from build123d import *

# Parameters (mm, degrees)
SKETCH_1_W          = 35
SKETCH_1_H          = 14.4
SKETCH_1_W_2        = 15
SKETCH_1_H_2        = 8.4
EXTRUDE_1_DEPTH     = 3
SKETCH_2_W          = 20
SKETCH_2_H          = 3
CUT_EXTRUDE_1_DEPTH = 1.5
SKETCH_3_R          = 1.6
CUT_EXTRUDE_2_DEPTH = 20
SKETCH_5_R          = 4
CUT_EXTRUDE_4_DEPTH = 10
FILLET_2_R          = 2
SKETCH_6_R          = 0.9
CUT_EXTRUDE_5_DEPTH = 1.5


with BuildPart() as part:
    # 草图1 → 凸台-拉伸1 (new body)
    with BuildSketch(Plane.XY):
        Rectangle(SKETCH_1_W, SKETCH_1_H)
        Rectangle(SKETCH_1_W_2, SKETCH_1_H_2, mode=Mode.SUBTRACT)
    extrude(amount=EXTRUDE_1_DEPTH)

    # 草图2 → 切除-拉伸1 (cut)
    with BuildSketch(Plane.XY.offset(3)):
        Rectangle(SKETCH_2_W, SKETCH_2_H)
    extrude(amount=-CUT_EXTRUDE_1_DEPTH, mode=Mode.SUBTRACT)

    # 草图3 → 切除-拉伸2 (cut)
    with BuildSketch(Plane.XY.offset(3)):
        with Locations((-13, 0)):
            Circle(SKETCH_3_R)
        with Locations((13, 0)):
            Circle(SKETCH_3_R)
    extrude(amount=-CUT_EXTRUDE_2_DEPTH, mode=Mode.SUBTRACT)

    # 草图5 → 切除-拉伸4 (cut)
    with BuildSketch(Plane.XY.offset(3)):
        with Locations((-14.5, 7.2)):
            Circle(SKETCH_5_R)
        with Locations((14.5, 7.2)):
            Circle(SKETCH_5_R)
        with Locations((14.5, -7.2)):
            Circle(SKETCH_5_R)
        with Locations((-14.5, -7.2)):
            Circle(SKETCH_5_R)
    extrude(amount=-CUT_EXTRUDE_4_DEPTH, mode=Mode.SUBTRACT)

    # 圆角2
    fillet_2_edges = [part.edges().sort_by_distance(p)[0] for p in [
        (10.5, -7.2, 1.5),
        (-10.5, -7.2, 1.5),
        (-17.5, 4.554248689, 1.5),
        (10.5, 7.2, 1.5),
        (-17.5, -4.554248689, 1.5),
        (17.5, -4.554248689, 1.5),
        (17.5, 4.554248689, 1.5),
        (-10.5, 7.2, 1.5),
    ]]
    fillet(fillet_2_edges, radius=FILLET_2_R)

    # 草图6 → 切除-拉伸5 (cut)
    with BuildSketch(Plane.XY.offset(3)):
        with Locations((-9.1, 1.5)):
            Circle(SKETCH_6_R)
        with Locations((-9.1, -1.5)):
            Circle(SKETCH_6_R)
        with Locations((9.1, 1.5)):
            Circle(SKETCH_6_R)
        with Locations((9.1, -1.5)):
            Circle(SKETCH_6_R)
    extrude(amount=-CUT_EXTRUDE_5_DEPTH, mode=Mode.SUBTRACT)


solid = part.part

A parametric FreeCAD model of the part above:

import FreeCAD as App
import Part
import Sketcher
Q = App.Units.Quantity


def edges_at(feature, points):
    """Names of the edges that pass closest to the given points."""
    edges = feature.Shape.Edges
    near = lambda p: min(range(len(edges)), key=lambda i: edges[i].distToShape(Part.Vertex(*p))[0])
    return sorted({f"Edge{near(p) + 1}" for p in points})

doc = App.newDocument("Part")
body = doc.addObject("PartDesign::Body", "Body")

sketch1 = doc.addObject("Sketcher::SketchObject", "Sketch")
body.addObject(sketch1)
sketch1.AttachmentSupport = (doc.XY_Plane, [""])
sketch1.MapMode = "FlatFace"
sketch1.addGeometry(Part.LineSegment(App.Vector(-17.5, 7.2, 0), App.Vector(-17.5, -7.2, 0)), False)
sketch1.addGeometry(Part.LineSegment(App.Vector(-17.5, -7.2, 0), App.Vector(17.5, -7.2, 0)), False)
sketch1.addGeometry(Part.LineSegment(App.Vector(17.5, -7.2, 0), App.Vector(17.5, 7.2, 0)), False)
sketch1.addGeometry(Part.LineSegment(App.Vector(17.5, 7.2, 0), App.Vector(-17.5, 7.2, 0)), False)
sketch1.addGeometry(Part.LineSegment(App.Vector(7.5, -4.2, 0), App.Vector(-7.5, -4.2, 0)), False)
sketch1.addGeometry(Part.LineSegment(App.Vector(-7.5, -4.2, 0), App.Vector(-7.5, 4.2, 0)), False)
sketch1.addGeometry(Part.LineSegment(App.Vector(-7.5, 4.2, 0), App.Vector(7.5, 4.2, 0)), False)
sketch1.addGeometry(Part.LineSegment(App.Vector(7.5, 4.2, 0), App.Vector(7.5, -4.2, 0)), False)
sketch1.addConstraint(Sketcher.Constraint("Coincident", 0, 2, 1, 1))
sketch1.addConstraint(Sketcher.Constraint("Coincident", 1, 2, 2, 1))
sketch1.addConstraint(Sketcher.Constraint("Coincident", 2, 2, 3, 1))
sketch1.addConstraint(Sketcher.Constraint("Coincident", 3, 2, 0, 1))
sketch1.addConstraint(Sketcher.Constraint("Coincident", 4, 2, 5, 1))
sketch1.addConstraint(Sketcher.Constraint("Coincident", 5, 2, 6, 1))
sketch1.addConstraint(Sketcher.Constraint("Coincident", 6, 2, 7, 1))
sketch1.addConstraint(Sketcher.Constraint("Coincident", 7, 2, 4, 1))
sketch1.addConstraint(Sketcher.Constraint("Vertical", 0))
sketch1.addConstraint(Sketcher.Constraint("Horizontal", 1))
sketch1.addConstraint(Sketcher.Constraint("Vertical", 2))
sketch1.addConstraint(Sketcher.Constraint("Horizontal", 3))
sketch1.addConstraint(Sketcher.Constraint("Horizontal", 4))
sketch1.addConstraint(Sketcher.Constraint("Vertical", 5))
sketch1.addConstraint(Sketcher.Constraint("Horizontal", 6))
sketch1.addConstraint(Sketcher.Constraint("Vertical", 7))
sketch1.addConstraint(Sketcher.Constraint("Symmetric", 0, 2, 2, 2, -1, 1))
sketch1.addConstraint(Sketcher.Constraint("Symmetric", 4, 2, 6, 2, -1, 1))
sketch1.addConstraint(Sketcher.Constraint("DistanceX", 1, 1, 1, 2, Q("35 mm")))
sketch1.addConstraint(Sketcher.Constraint("DistanceX", 4, 2, 4, 1, Q("15 mm")))
sketch1.addConstraint(Sketcher.Constraint("DistanceY", 0, 2, 0, 1, Q("14.4 mm")))
sketch1.addConstraint(Sketcher.Constraint("DistanceY", 5, 1, 5, 2, Q("8.4 mm")))
pad1 = doc.addObject("PartDesign::Pad", "Pad")
body.addObject(pad1)
pad1.Profile = sketch1
pad1.Length = 3

sketch2 = doc.addObject("Sketcher::SketchObject", "Sketch001")
body.addObject(sketch2)
sketch2.AttachmentSupport = (doc.XY_Plane, [""])
sketch2.MapMode = "FlatFace"
sketch2.AttachmentOffset = App.Placement(App.Vector(0, 0, 3), App.Rotation())
sketch2.addGeometry(Part.LineSegment(App.Vector(-10, 1.5, 0), App.Vector(-10, -1.5, 0)), False)
sketch2.addGeometry(Part.LineSegment(App.Vector(-10, -1.5, 0), App.Vector(10, -1.5, 0)), False)
sketch2.addGeometry(Part.LineSegment(App.Vector(10, -1.5, 0), App.Vector(10, 1.5, 0)), False)
sketch2.addGeometry(Part.LineSegment(App.Vector(10, 1.5, 0), App.Vector(-10, 1.5, 0)), False)
sketch2.addConstraint(Sketcher.Constraint("Coincident", 0, 2, 1, 1))
sketch2.addConstraint(Sketcher.Constraint("Coincident", 1, 2, 2, 1))
sketch2.addConstraint(Sketcher.Constraint("Coincident", 2, 2, 3, 1))
sketch2.addConstraint(Sketcher.Constraint("Coincident", 3, 2, 0, 1))
sketch2.addConstraint(Sketcher.Constraint("Vertical", 0))
sketch2.addConstraint(Sketcher.Constraint("Horizontal", 1))
sketch2.addConstraint(Sketcher.Constraint("Vertical", 2))
sketch2.addConstraint(Sketcher.Constraint("Horizontal", 3))
sketch2.addConstraint(Sketcher.Constraint("Symmetric", 0, 2, 2, 2, -1, 1))
sketch2.addConstraint(Sketcher.Constraint("DistanceX", 1, 1, 1, 2, Q("20 mm")))
sketch2.addConstraint(Sketcher.Constraint("DistanceY", 0, 2, 0, 1, Q("3 mm")))
pocket1 = doc.addObject("PartDesign::Pocket", "Pocket")
body.addObject(pocket1)
pocket1.Profile = sketch2
pocket1.Length = 1.5

sketch3 = doc.addObject("Sketcher::SketchObject", "Sketch002")
body.addObject(sketch3)
sketch3.AttachmentSupport = (doc.XY_Plane, [""])
sketch3.MapMode = "FlatFace"
sketch3.AttachmentOffset = App.Placement(App.Vector(0, 0, 3), App.Rotation())
sketch3.addGeometry(Part.Circle(App.Vector(-13, 0, 0), App.Vector(0, 0, 1), 1.6), False)
sketch3.addGeometry(Part.Circle(App.Vector(13, 0, 0), App.Vector(0, 0, 1), 1.6), False)
sketch3.addConstraint(Sketcher.Constraint("Equal", 0, 1))
sketch3.addConstraint(Sketcher.Constraint("Symmetric", 0, 3, 1, 3, -1, 1))
sketch3.addConstraint(Sketcher.Constraint("PointOnObject", 0, 3, -1))
sketch3.addConstraint(Sketcher.Constraint("Diameter", 0, Q("3.2 mm")))
sketch3.addConstraint(Sketcher.Constraint("DistanceX", 0, 3, -1, 1, Q("13 mm")))
pocket2 = doc.addObject("PartDesign::Pocket", "Pocket001")
body.addObject(pocket2)
pocket2.Profile = sketch3
pocket2.Length = 20

sketch4 = doc.addObject("Sketcher::SketchObject", "Sketch003")
body.addObject(sketch4)
sketch4.AttachmentSupport = (doc.XY_Plane, [""])
sketch4.MapMode = "FlatFace"
sketch4.AttachmentOffset = App.Placement(App.Vector(0, 0, 3), App.Rotation())
sketch4.addGeometry(Part.Circle(App.Vector(-14.5, 7.2, 0), App.Vector(0, 0, 1), 4), False)
sketch4.addGeometry(Part.Circle(App.Vector(14.5, 7.2, 0), App.Vector(0, 0, 1), 4), False)
sketch4.addGeometry(Part.Circle(App.Vector(14.5, -7.2, 0), App.Vector(0, 0, 1), 4), False)
sketch4.addGeometry(Part.Circle(App.Vector(-14.5, -7.2, 0), App.Vector(0, 0, 1), 4), False)
sketch4.addConstraint(Sketcher.Constraint("Equal", 0, 1))
sketch4.addConstraint(Sketcher.Constraint("Equal", 1, 2))
sketch4.addConstraint(Sketcher.Constraint("Equal", 2, 3))
sketch4.addConstraint(Sketcher.Constraint("Symmetric", 0, 3, 2, 3, -1, 1))
sketch4.addConstraint(Sketcher.Constraint("Symmetric", 1, 3, 3, 3, -1, 1))
sketch4.addConstraint(Sketcher.Constraint("Symmetric", 0, 3, 1, 3, -2))
sketch4.addConstraint(Sketcher.Constraint("Diameter", 0, Q("8 mm")))
sketch4.addConstraint(Sketcher.Constraint("DistanceX", 0, 3, 1, 3, Q("29 mm")))
sketch4.addConstraint(Sketcher.Constraint("DistanceY", -1, 1, 0, 3, Q("7.2 mm")))
pocket3 = doc.addObject("PartDesign::Pocket", "Pocket002")
body.addObject(pocket3)
pocket3.Profile = sketch4
pocket3.Length = 10
doc.recompute()

fillet = doc.addObject("PartDesign::Fillet", "Fillet")
body.addObject(fillet)
fillet.Base = (pocket3, edges_at(pocket3, [
    (10.5, -7.2, 1.5),
    (-10.5, -7.2, 1.5),
    (-17.5, 4.554, 1.5),
    (10.5, 7.2, 1.5),
    (-17.5, -4.554, 1.5),
    (17.5, -4.554, 1.5),
    (17.5, 4.554, 1.5),
    (-10.5, 7.2, 1.5),
]))
fillet.Radius = 2

sketch5 = doc.addObject("Sketcher::SketchObject", "Sketch004")
body.addObject(sketch5)
sketch5.AttachmentSupport = (doc.XY_Plane, [""])
sketch5.MapMode = "FlatFace"
sketch5.AttachmentOffset = App.Placement(App.Vector(0, 0, 3), App.Rotation())
sketch5.addGeometry(Part.Circle(App.Vector(-9.1, 1.5, 0), App.Vector(0, 0, 1), 0.9), False)
sketch5.addGeometry(Part.Circle(App.Vector(-9.1, -1.5, 0), App.Vector(0, 0, 1), 0.9), False)
sketch5.addGeometry(Part.Circle(App.Vector(9.1, 1.5, 0), App.Vector(0, 0, 1), 0.9), False)
sketch5.addGeometry(Part.Circle(App.Vector(9.1, -1.5, 0), App.Vector(0, 0, 1), 0.9), False)
sketch5.addConstraint(Sketcher.Constraint("Equal", 0, 1))
sketch5.addConstraint(Sketcher.Constraint("Equal", 1, 2))
sketch5.addConstraint(Sketcher.Constraint("Equal", 2, 3))
sketch5.addConstraint(Sketcher.Constraint("Symmetric", 1, 3, 2, 3, -1, 1))
sketch5.addConstraint(Sketcher.Constraint("Symmetric", 0, 3, 3, 3, -1, 1))
sketch5.addConstraint(Sketcher.Constraint("Symmetric", 0, 3, 2, 3, -2))
sketch5.addConstraint(Sketcher.Constraint("Diameter", 0, Q("1.8 mm")))
sketch5.addConstraint(Sketcher.Constraint("DistanceY", 1, 3, 0, 3, Q("3 mm")))
sketch5.addConstraint(Sketcher.Constraint("DistanceX", 0, 3, -1, 1, Q("9.1 mm")))
pocket4 = doc.addObject("PartDesign::Pocket", "Pocket003")
body.addObject(pocket4)
pocket4.Profile = sketch5
pocket4.Length = 1.5

doc.recompute()
